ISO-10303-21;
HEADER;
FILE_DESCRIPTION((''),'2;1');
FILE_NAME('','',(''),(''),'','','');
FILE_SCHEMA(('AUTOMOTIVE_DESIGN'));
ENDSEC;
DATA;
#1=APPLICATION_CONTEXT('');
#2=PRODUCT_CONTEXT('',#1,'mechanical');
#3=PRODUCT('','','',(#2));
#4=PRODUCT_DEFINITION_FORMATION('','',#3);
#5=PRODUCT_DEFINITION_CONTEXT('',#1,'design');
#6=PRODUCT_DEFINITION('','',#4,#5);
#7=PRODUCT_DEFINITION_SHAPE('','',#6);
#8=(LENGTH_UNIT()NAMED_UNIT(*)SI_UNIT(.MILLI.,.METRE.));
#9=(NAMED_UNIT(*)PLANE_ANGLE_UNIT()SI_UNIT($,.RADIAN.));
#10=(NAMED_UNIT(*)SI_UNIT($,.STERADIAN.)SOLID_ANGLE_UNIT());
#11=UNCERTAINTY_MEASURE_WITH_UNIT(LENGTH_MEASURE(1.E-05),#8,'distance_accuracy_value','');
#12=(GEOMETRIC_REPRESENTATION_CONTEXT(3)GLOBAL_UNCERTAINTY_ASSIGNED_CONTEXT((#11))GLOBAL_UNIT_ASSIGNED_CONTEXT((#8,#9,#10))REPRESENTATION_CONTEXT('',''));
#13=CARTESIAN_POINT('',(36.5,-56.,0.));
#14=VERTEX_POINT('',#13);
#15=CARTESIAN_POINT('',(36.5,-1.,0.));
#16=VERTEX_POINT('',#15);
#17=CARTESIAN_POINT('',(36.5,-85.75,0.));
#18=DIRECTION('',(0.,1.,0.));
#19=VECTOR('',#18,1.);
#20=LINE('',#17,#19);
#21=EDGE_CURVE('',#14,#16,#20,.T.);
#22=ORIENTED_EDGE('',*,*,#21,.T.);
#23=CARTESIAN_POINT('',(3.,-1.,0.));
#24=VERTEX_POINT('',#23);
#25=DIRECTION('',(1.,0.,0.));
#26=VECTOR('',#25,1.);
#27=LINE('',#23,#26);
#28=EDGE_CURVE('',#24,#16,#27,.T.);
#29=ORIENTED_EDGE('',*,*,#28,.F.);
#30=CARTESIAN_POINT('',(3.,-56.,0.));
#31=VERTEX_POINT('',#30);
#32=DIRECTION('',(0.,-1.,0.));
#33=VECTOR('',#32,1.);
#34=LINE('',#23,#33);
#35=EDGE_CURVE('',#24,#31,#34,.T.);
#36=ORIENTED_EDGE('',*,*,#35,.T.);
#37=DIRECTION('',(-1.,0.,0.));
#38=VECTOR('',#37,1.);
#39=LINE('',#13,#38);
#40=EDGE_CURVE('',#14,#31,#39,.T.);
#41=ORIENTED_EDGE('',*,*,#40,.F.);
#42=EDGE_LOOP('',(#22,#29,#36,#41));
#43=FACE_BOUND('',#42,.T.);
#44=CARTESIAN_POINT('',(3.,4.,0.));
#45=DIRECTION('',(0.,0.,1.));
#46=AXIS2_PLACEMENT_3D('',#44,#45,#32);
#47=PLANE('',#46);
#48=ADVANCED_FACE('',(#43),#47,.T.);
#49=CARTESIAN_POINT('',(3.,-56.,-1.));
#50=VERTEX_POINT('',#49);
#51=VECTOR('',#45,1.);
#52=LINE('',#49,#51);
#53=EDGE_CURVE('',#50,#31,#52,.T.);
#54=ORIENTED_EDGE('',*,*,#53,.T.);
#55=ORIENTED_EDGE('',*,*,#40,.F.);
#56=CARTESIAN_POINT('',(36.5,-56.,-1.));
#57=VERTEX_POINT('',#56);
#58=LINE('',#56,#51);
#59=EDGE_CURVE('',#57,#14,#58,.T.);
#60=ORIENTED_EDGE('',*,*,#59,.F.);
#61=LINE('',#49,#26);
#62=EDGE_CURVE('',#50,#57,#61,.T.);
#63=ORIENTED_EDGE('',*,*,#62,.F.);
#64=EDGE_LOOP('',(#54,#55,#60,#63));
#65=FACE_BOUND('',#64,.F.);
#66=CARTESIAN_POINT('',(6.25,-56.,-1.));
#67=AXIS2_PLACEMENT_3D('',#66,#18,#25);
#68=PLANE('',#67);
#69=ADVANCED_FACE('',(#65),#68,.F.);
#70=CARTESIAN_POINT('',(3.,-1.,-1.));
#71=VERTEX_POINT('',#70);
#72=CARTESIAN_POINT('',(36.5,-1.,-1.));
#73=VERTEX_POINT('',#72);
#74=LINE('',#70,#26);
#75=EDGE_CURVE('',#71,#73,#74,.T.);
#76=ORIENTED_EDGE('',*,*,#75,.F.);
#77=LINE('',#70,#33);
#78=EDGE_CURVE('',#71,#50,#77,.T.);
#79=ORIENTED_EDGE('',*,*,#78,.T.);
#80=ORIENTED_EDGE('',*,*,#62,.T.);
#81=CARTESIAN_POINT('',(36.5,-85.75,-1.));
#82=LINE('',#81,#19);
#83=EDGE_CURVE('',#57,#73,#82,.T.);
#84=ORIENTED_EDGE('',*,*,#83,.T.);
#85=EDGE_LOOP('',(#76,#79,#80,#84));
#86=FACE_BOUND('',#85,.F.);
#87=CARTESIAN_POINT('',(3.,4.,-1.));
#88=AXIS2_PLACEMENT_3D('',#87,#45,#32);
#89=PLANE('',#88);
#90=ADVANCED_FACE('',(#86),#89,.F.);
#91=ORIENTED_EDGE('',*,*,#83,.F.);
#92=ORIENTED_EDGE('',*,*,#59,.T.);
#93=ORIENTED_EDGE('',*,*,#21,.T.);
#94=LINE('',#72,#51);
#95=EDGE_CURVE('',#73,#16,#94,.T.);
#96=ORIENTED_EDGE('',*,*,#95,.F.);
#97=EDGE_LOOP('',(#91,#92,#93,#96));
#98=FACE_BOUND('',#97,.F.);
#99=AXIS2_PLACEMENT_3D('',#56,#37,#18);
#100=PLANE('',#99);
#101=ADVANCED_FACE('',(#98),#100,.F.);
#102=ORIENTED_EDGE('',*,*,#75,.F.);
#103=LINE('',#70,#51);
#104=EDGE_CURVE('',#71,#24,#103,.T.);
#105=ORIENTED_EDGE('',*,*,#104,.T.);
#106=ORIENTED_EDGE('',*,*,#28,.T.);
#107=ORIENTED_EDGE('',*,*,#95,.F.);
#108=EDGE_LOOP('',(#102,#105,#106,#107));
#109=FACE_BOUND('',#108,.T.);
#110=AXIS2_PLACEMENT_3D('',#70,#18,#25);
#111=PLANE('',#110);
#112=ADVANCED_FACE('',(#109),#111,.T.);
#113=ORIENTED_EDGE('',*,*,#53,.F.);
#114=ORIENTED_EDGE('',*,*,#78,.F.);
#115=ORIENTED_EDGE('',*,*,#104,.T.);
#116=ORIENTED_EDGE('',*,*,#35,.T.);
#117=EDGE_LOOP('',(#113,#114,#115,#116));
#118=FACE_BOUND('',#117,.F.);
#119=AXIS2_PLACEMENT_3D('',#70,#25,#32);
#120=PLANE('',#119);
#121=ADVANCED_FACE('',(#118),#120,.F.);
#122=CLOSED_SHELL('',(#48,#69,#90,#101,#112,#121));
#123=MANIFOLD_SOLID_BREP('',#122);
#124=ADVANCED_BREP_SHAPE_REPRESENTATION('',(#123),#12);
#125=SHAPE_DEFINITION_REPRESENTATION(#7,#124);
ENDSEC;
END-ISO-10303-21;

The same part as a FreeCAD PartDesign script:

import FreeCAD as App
import Part
import Sketcher

V = App.Vector


def add_polygon(sketch, points):
    """Adds a closed chain of lines whose ends are joined by coincident constraints."""
    first, n = sketch.GeometryCount, len(points)
    for a, b in zip(points, points[1:] + points[:1]):
        sketch.addGeometry(Part.LineSegment(App.Vector(*a, 0), App.Vector(*b, 0)), False)
    for i in range(n):
        sketch.addConstraint(Sketcher.Constraint("Coincident", first + i, 2, first + (i + 1) % n, 1))

doc = App.newDocument("Part")
params = doc.addObject("Spreadsheet::Sheet", "Params")
for row, (alias, value) in enumerate([
    ("sketch1_height", "55 mm"),
    ("sketch1_width", "33.5 mm"),
    ("pad1_length", "1 mm"),
], start=1):
    params.set(f"A{row}", alias)
    params.set(f"B{row}", "=" + value)
    params.setAlias(f"B{row}", alias)

body = doc.addObject("PartDesign::Body", "Body")

# Sketch on XY plane
sketch1 = doc.addObject("Sketcher::SketchObject", "Sketch")
body.addObject(sketch1)
sketch1.AttachmentSupport = (doc.XY_Plane, [""])
sketch1.MapMode = "FlatFace"
sketch1.AttachmentOffset = App.Placement(V(0, 0, -1), App.Rotation())
add_polygon(sketch1, [(36, -56), (36, -1), (3, -1), (3, -56)])  # lines 0-3
sketch1.addConstraint([
    Sketcher.Constraint("Vertical", 0),
    Sketcher.Constraint("Horizontal", 1),
    Sketcher.Constraint("Vertical", 2),
    Sketcher.Constraint("Horizontal", 3),
    Sketcher.Constraint("DistanceY", 0, 1, 0, 2, 55.0),
    Sketcher.Constraint("DistanceX", 1, 2, 1, 1, 33.5),
    Sketcher.Constraint("DistanceY", 0, 2, -1, 1, 1.0),
    Sketcher.Constraint("DistanceX", -1, 1, 1, 2, 3.0),
])
sketch1.setExpression("Constraints[8]", "Params.sketch1_height")
sketch1.setExpression("Constraints[9]", "Params.sketch1_width")
pad1 = doc.addObject("PartDesign::Pad", "Pad")
body.addObject(pad1)
pad1.Profile = sketch1
pad1.setExpression("Length", "Params.pad1_length")

doc.recompute()
